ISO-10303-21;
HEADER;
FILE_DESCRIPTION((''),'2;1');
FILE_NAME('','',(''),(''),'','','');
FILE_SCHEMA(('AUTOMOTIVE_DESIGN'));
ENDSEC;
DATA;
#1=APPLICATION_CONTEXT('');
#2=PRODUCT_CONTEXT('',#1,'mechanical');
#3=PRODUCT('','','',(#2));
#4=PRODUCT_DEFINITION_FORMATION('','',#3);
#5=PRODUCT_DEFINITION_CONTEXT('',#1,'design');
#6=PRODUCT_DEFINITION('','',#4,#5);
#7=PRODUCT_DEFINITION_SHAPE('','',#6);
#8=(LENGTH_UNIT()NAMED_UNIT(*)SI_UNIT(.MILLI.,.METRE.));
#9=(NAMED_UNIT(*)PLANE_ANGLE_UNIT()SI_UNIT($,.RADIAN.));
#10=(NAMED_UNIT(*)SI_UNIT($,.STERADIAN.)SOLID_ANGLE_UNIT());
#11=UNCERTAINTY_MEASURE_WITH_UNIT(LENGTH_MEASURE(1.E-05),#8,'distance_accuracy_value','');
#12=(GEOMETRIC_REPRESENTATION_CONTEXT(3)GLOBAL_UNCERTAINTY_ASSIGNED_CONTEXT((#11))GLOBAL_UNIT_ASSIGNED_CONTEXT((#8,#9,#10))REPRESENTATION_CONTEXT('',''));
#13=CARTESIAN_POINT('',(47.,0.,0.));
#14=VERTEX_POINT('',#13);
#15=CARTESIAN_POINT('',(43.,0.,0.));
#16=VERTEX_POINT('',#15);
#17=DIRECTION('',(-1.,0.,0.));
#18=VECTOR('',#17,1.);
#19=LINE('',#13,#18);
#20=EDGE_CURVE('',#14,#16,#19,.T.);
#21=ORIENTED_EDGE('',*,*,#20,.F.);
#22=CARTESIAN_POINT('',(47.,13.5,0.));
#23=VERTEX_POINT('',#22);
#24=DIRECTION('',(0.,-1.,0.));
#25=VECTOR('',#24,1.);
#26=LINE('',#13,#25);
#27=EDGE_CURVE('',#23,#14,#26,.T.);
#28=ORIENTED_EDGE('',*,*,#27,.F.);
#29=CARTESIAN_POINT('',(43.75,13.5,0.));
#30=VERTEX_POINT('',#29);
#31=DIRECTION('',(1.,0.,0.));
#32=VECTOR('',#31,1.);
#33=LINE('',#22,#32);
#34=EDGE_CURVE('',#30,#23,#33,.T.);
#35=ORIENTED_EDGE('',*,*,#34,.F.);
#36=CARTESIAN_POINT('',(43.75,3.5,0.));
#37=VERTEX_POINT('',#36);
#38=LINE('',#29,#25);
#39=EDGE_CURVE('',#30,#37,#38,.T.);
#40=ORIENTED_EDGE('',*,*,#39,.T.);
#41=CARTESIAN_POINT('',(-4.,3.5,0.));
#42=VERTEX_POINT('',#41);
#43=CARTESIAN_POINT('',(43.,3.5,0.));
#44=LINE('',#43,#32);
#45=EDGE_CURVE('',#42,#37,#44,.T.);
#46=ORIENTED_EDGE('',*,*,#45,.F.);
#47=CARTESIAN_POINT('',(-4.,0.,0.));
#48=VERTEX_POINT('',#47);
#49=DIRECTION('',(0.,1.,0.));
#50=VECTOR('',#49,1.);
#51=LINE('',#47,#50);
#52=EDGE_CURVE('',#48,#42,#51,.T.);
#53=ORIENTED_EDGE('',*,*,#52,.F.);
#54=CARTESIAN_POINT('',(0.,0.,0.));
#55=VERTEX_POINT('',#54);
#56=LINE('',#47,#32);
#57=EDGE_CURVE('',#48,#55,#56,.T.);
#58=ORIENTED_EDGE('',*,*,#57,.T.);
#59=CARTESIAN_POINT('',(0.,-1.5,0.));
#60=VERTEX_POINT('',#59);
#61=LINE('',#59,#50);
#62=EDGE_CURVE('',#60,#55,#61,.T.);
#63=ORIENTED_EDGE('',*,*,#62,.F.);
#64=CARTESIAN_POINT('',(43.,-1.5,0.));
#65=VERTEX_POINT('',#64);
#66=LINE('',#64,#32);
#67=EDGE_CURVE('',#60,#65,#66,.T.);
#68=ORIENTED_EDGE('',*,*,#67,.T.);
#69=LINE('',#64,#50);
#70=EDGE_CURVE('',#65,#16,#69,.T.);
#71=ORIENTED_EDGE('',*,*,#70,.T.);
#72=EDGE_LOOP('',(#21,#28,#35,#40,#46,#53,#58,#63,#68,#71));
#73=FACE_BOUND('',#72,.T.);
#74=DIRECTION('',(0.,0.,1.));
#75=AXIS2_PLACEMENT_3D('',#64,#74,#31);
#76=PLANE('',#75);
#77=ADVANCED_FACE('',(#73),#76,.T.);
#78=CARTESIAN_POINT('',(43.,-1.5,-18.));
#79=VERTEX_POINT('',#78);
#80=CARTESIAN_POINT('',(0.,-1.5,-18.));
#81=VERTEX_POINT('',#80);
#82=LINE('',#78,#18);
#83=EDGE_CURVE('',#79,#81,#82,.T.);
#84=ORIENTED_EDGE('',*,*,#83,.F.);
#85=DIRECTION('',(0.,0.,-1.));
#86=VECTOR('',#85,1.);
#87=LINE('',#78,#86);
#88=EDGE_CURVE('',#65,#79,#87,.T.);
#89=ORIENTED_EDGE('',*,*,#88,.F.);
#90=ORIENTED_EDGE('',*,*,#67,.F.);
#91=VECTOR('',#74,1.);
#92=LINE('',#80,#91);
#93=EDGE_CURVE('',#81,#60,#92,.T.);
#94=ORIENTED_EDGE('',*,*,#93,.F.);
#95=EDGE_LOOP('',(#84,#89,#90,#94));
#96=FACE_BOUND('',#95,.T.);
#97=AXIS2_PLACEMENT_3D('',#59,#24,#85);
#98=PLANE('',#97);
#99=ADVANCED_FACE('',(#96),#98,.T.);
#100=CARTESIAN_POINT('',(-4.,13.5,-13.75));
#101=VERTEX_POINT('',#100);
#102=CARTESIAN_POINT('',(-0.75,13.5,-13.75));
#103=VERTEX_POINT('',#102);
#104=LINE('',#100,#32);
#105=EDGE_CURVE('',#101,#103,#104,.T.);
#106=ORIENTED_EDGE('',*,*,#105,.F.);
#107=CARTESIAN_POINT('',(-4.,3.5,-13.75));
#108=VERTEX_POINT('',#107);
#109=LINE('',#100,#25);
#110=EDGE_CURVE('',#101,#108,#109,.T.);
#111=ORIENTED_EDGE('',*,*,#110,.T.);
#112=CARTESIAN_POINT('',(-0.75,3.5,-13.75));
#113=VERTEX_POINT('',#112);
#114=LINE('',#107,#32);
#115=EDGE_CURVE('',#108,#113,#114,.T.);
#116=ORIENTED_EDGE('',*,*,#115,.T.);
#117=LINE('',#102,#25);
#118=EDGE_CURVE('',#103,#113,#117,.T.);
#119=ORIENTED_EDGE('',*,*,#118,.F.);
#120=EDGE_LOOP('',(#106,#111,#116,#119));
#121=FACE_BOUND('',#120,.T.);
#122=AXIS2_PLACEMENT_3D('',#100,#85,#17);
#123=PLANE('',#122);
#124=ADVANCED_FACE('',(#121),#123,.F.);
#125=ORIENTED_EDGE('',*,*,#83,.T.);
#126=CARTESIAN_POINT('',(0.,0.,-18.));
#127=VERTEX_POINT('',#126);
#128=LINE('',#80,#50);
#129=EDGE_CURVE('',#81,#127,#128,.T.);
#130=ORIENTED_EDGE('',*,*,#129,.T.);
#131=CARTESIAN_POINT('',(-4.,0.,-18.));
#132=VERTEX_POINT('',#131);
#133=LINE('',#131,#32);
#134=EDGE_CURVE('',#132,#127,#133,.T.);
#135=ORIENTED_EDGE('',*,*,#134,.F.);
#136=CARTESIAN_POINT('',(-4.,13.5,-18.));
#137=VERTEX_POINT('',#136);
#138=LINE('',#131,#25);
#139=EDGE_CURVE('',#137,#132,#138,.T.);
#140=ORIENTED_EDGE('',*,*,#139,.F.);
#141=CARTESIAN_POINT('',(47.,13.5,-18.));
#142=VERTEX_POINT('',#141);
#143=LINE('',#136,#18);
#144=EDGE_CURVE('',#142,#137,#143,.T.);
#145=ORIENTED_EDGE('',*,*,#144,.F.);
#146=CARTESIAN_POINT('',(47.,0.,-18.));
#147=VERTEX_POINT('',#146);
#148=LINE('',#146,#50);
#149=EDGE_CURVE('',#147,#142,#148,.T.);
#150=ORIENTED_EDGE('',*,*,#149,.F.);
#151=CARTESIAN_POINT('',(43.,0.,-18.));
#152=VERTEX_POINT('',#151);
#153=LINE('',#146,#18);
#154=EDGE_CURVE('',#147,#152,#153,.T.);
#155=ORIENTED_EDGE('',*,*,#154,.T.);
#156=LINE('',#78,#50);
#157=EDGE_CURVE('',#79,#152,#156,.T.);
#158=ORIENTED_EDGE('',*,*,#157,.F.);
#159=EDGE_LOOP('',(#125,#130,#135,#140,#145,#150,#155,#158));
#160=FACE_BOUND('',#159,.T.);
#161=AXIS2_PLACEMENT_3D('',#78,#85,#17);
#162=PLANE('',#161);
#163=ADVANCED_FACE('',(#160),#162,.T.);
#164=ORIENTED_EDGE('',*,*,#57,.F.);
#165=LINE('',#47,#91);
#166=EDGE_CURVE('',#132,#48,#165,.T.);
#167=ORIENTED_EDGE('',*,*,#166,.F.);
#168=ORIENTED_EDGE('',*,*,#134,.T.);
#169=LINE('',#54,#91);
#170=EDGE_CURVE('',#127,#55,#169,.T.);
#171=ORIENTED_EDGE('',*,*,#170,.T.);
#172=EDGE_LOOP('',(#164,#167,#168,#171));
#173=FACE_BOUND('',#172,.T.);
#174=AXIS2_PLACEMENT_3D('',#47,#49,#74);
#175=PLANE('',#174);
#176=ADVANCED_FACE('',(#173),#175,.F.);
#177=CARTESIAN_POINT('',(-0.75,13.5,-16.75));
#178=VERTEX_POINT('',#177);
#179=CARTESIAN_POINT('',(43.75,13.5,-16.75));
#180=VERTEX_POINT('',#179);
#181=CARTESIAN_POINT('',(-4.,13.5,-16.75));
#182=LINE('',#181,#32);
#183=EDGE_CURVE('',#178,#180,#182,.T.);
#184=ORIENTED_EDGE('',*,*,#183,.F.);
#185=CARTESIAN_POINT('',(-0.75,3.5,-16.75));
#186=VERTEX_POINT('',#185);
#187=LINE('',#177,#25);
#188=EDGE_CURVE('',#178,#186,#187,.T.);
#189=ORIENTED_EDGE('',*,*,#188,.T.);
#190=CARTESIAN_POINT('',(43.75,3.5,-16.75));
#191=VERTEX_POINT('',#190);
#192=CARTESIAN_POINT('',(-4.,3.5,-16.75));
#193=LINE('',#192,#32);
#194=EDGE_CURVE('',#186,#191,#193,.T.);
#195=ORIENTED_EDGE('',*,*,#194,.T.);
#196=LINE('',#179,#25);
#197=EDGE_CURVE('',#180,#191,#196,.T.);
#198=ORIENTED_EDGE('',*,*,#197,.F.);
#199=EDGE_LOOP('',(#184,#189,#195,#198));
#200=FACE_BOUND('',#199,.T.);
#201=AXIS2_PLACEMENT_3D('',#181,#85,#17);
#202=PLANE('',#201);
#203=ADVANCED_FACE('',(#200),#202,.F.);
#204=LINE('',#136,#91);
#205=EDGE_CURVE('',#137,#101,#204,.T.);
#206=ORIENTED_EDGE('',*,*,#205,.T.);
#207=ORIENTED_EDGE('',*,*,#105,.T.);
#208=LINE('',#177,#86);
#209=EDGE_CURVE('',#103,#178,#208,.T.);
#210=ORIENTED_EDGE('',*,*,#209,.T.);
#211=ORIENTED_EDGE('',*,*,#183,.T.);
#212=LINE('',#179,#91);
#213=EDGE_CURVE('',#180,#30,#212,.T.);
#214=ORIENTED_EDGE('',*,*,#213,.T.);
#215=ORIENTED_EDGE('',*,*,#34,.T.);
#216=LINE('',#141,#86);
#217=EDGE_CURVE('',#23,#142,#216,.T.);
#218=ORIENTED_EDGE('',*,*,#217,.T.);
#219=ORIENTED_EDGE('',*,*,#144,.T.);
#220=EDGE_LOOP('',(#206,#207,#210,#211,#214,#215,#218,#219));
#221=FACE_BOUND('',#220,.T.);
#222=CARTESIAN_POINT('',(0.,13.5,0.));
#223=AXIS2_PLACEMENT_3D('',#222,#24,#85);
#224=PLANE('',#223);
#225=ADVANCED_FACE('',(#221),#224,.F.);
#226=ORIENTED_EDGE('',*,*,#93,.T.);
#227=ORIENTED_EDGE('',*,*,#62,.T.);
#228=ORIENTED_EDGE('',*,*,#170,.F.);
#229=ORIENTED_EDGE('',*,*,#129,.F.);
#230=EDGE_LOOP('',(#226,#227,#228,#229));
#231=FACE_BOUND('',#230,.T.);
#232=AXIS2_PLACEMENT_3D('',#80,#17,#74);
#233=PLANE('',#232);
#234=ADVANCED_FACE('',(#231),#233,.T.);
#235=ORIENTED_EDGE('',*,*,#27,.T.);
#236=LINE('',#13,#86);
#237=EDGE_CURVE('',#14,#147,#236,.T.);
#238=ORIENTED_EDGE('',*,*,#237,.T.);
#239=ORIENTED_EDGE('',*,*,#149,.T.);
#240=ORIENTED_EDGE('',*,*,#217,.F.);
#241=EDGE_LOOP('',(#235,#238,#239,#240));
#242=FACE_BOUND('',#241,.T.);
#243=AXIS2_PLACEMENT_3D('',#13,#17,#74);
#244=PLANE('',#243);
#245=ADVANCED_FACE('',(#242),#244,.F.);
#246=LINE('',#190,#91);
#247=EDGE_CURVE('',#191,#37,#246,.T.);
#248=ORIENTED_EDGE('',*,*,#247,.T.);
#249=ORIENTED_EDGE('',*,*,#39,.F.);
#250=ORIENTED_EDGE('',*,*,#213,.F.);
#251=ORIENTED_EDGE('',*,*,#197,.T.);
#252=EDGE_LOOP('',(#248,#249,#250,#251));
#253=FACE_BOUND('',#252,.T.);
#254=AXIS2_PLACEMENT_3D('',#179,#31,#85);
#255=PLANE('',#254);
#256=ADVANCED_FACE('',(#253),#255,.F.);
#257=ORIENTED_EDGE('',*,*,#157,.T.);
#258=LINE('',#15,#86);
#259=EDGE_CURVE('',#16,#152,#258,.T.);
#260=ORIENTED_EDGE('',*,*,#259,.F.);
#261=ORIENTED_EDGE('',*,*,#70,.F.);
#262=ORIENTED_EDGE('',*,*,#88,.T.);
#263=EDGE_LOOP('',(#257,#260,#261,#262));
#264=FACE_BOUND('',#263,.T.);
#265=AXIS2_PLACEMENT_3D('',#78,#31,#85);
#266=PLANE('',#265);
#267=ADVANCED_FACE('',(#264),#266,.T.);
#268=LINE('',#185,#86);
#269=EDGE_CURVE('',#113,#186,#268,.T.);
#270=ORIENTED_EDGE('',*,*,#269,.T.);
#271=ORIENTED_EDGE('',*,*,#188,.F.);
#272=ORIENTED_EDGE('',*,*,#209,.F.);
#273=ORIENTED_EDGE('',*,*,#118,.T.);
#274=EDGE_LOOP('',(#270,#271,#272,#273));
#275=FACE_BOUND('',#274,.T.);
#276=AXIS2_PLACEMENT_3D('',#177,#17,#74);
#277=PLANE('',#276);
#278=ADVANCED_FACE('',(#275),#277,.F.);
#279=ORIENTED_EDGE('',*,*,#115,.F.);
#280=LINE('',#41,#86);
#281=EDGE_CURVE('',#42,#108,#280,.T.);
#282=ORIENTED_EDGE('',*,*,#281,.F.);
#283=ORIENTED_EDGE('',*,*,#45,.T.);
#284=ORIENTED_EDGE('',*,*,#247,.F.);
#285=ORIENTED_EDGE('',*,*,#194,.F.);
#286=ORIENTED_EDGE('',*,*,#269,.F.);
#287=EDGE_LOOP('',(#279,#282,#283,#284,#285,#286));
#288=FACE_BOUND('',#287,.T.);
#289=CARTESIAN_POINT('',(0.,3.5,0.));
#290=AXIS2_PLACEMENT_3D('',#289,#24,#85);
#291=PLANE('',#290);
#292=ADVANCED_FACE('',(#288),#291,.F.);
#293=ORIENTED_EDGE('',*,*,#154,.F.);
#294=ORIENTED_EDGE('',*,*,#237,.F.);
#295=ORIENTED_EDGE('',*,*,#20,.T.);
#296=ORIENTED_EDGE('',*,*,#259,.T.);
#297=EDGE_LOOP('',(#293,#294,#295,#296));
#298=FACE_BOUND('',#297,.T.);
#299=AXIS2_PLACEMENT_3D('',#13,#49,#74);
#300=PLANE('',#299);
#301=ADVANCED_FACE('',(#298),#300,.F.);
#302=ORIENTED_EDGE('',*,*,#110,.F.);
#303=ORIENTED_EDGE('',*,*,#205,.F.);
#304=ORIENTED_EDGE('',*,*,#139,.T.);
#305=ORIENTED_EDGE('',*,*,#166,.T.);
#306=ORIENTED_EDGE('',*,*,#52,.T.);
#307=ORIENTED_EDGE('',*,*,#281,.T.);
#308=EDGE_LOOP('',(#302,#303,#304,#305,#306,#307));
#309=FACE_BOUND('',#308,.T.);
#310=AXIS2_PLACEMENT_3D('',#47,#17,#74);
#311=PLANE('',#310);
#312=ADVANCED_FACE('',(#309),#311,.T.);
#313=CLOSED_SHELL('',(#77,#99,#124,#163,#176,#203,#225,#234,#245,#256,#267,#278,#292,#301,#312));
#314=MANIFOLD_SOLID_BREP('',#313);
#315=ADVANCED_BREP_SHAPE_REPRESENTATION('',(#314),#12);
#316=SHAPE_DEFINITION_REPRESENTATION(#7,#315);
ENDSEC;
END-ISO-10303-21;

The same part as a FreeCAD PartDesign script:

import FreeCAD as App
import Part
import Sketcher
from FreeCAD import Vector


def add_polygon(sketch, points):
    """Adds a closed chain of lines whose ends are joined by coincident constraints."""
    first, n = sketch.GeometryCount, len(points)
    for a, b in zip(points, points[1:] + points[:1]):
        sketch.addGeometry(Part.LineSegment(App.Vector(*a, 0), App.Vector(*b, 0)), False)
    for i in range(n):
        sketch.addConstraint(Sketcher.Constraint("Coincident", first + i, 2, first + (i + 1) % n, 1))

doc = App.newDocument("Part")
body = doc.addObject("PartDesign::Body", "Body")

sketch1 = body.newObject("Sketcher::SketchObject", "Sketch")
sketch1.AttachmentSupport = (doc.getObject("XZ_Plane"), [""])
sketch1.MapMode = "FlatFace"
add_polygon(sketch1, [(0, -18), (0, 0), (43, 0), (43, -18)])
sketch1.addConstraint([
    Sketcher.Constraint("Vertical", 0),
    Sketcher.Constraint("Horizontal", 1),
    Sketcher.Constraint("Vertical", 2),
    Sketcher.Constraint("Horizontal", 3),
    Sketcher.Constraint("Coincident", 0, 2, -1, 1),
    Sketcher.Constraint("DistanceX", 1, 1, 1, 2, 43.0),
    Sketcher.Constraint("DistanceY", 0, 1, 0, 2, 18.0),
])
pad1 = body.newObject("PartDesign::Pad", "Pad")
pad1.Profile = sketch1
pad1.Type = "TwoLengths"
pad1.Length = 3.5
pad1.Length2 = 1.5
pad1.Reversed = True

sketch2 = body.newObject("Sketcher::SketchObject", "Sketch001")
sketch2.AttachmentSupport = (doc.getObject("YZ_Plane"), [""])
sketch2.MapMode = "FlatFace"
sketch2.AttachmentOffset = App.Placement(Vector(0, 0, 43), App.Rotation())
add_polygon(sketch2, [(3.5, 0), (0, 0), (0, -18), (3.5, -18)])
sketch2.addConstraint([
    Sketcher.Constraint("Horizontal", 0),
    Sketcher.Constraint("Vertical", 1),
    Sketcher.Constraint("Horizontal", 2),
    Sketcher.Constraint("Vertical", 3),
    Sketcher.Constraint("Coincident", 0, 2, -1, 1),
    Sketcher.Constraint("DistanceY", 1, 2, 1, 1, 18.0),
    Sketcher.Constraint("DistanceX", 0, 2, 0, 1, 3.5),
])
pad2 = body.newObject("PartDesign::Pad", "Pad001")
pad2.Profile = sketch2
pad2.Length = 4

sketch3 = body.newObject("Sketcher::SketchObject", "Sketch002")
sketch3.AttachmentSupport = (doc.getObject("YZ_Plane"), [""])
sketch3.MapMode = "FlatFace"
add_polygon(sketch3, [(3.5, -18), (0, -18), (0, 0), (3.5, 0)])
sketch3.addConstraint([
    Sketcher.Constraint("Horizontal", 0),
    Sketcher.Constraint("Vertical", 1),
    Sketcher.Constraint("Horizontal", 2),
    Sketcher.Constraint("Vertical", 3),
    Sketcher.Constraint("Coincident", 1, 2, -1, 1),
    Sketcher.Constraint("DistanceY", 1, 1, 1, 2, 18.0),
    Sketcher.Constraint("DistanceX", 0, 2, 0, 1, 3.5),
])
pad3 = body.newObject("PartDesign::Pad", "Pad002")
pad3.Profile = sketch3
pad3.Length = 4
pad3.Reversed = True

sketch4 = body.newObject("Sketcher::SketchObject", "Sketch003")
sketch4.AttachmentSupport = (doc.getObject("XZ_Plane"), [""])
sketch4.MapMode = "FlatFace"
sketch4.AttachmentOffset = App.Placement(Vector(0, 0, -3.5), App.Rotation())
add_polygon(sketch4, [(-4, -18), (-4, -16.8), (47, -16.8), (47, -18)])
sketch4.addConstraint([
    Sketcher.Constraint("Vertical", 0),
    Sketcher.Constraint("Horizontal", 1),
    Sketcher.Constraint("Vertical", 2),
    Sketcher.Constraint("Horizontal", 3),
    Sketcher.Constraint("DistanceX", 1, 1, 1, 2, 51.0),
    Sketcher.Constraint("DistanceX", 0, 2, -1, 1, 4.0),
    Sketcher.Constraint("DistanceY", 2, 2, -1, 1, 18.0),
    Sketcher.Constraint("DistanceY", 0, 1, 0, 2, 1.25),
])
pad4 = body.newObject("PartDesign::Pad", "Pad003")
pad4.Profile = sketch4
pad4.Length = 10
pad4.Reversed = True

sketch5 = body.newObject("Sketcher::SketchObject", "Sketch004")
sketch5.AttachmentSupport = (doc.getObject("XZ_Plane"), [""])
sketch5.MapMode = "FlatFace"
sketch5.AttachmentOffset = App.Placement(Vector(0, 0, -3.5), App.Rotation())
add_polygon(sketch5, [(43.8, -16.8), (43.8, 0), (47, 0), (47, -16.8)])
sketch5.addConstraint([
    Sketcher.Constraint("Vertical", 0),
    Sketcher.Constraint("Horizontal", 1),
    Sketcher.Constraint("Vertical", 2),
    Sketcher.Constraint("Horizontal", 3),
    Sketcher.Constraint("PointOnObject", 0, 2, -1),
    Sketcher.Constraint("DistanceX", -1, 1, 1, 2, 47.0),
    Sketcher.Constraint("DistanceX", 1, 1, 1, 2, 3.25),
    Sketcher.Constraint("DistanceY", 0, 1, 0, 2, 16.75),
])
pad5 = body.newObject("PartDesign::Pad", "Pad004")
pad5.Profile = sketch5
pad5.Length = 10
pad5.Reversed = True

sketch6 = body.newObject("Sketcher::SketchObject", "Sketch005")
sketch6.AttachmentSupport = (doc.getObject("XZ_Plane"), [""])
sketch6.MapMode = "FlatFace"
sketch6.AttachmentOffset = App.Placement(Vector(0, 0, -3.5), App.Rotation())
add_polygon(sketch6, [(-4, -16.8), (-4, -13.8), (-0.8, -13.8), (-0.8, -16.8)])
sketch6.addConstraint([
    Sketcher.Constraint("Vertical", 0),
    Sketcher.Constraint("Horizontal", 1),
    Sketcher.Constraint("Vertical", 2),
    Sketcher.Constraint("Horizontal", 3),
    Sketcher.Constraint("DistanceY", 0, 1, 0, 2, 3.0),
    Sketcher.Constraint("DistanceX", 0, 2, -1, 1, 4.0),
    Sketcher.Constraint("DistanceX", 1, 1, 1, 2, 3.25),
    Sketcher.Constraint("DistanceY", 0, 2, -1, 1, 13.75),
])
pad6 = body.newObject("PartDesign::Pad", "Pad005")
pad6.Profile = sketch6
pad6.Length = 10
pad6.Reversed = True

doc.recompute()
